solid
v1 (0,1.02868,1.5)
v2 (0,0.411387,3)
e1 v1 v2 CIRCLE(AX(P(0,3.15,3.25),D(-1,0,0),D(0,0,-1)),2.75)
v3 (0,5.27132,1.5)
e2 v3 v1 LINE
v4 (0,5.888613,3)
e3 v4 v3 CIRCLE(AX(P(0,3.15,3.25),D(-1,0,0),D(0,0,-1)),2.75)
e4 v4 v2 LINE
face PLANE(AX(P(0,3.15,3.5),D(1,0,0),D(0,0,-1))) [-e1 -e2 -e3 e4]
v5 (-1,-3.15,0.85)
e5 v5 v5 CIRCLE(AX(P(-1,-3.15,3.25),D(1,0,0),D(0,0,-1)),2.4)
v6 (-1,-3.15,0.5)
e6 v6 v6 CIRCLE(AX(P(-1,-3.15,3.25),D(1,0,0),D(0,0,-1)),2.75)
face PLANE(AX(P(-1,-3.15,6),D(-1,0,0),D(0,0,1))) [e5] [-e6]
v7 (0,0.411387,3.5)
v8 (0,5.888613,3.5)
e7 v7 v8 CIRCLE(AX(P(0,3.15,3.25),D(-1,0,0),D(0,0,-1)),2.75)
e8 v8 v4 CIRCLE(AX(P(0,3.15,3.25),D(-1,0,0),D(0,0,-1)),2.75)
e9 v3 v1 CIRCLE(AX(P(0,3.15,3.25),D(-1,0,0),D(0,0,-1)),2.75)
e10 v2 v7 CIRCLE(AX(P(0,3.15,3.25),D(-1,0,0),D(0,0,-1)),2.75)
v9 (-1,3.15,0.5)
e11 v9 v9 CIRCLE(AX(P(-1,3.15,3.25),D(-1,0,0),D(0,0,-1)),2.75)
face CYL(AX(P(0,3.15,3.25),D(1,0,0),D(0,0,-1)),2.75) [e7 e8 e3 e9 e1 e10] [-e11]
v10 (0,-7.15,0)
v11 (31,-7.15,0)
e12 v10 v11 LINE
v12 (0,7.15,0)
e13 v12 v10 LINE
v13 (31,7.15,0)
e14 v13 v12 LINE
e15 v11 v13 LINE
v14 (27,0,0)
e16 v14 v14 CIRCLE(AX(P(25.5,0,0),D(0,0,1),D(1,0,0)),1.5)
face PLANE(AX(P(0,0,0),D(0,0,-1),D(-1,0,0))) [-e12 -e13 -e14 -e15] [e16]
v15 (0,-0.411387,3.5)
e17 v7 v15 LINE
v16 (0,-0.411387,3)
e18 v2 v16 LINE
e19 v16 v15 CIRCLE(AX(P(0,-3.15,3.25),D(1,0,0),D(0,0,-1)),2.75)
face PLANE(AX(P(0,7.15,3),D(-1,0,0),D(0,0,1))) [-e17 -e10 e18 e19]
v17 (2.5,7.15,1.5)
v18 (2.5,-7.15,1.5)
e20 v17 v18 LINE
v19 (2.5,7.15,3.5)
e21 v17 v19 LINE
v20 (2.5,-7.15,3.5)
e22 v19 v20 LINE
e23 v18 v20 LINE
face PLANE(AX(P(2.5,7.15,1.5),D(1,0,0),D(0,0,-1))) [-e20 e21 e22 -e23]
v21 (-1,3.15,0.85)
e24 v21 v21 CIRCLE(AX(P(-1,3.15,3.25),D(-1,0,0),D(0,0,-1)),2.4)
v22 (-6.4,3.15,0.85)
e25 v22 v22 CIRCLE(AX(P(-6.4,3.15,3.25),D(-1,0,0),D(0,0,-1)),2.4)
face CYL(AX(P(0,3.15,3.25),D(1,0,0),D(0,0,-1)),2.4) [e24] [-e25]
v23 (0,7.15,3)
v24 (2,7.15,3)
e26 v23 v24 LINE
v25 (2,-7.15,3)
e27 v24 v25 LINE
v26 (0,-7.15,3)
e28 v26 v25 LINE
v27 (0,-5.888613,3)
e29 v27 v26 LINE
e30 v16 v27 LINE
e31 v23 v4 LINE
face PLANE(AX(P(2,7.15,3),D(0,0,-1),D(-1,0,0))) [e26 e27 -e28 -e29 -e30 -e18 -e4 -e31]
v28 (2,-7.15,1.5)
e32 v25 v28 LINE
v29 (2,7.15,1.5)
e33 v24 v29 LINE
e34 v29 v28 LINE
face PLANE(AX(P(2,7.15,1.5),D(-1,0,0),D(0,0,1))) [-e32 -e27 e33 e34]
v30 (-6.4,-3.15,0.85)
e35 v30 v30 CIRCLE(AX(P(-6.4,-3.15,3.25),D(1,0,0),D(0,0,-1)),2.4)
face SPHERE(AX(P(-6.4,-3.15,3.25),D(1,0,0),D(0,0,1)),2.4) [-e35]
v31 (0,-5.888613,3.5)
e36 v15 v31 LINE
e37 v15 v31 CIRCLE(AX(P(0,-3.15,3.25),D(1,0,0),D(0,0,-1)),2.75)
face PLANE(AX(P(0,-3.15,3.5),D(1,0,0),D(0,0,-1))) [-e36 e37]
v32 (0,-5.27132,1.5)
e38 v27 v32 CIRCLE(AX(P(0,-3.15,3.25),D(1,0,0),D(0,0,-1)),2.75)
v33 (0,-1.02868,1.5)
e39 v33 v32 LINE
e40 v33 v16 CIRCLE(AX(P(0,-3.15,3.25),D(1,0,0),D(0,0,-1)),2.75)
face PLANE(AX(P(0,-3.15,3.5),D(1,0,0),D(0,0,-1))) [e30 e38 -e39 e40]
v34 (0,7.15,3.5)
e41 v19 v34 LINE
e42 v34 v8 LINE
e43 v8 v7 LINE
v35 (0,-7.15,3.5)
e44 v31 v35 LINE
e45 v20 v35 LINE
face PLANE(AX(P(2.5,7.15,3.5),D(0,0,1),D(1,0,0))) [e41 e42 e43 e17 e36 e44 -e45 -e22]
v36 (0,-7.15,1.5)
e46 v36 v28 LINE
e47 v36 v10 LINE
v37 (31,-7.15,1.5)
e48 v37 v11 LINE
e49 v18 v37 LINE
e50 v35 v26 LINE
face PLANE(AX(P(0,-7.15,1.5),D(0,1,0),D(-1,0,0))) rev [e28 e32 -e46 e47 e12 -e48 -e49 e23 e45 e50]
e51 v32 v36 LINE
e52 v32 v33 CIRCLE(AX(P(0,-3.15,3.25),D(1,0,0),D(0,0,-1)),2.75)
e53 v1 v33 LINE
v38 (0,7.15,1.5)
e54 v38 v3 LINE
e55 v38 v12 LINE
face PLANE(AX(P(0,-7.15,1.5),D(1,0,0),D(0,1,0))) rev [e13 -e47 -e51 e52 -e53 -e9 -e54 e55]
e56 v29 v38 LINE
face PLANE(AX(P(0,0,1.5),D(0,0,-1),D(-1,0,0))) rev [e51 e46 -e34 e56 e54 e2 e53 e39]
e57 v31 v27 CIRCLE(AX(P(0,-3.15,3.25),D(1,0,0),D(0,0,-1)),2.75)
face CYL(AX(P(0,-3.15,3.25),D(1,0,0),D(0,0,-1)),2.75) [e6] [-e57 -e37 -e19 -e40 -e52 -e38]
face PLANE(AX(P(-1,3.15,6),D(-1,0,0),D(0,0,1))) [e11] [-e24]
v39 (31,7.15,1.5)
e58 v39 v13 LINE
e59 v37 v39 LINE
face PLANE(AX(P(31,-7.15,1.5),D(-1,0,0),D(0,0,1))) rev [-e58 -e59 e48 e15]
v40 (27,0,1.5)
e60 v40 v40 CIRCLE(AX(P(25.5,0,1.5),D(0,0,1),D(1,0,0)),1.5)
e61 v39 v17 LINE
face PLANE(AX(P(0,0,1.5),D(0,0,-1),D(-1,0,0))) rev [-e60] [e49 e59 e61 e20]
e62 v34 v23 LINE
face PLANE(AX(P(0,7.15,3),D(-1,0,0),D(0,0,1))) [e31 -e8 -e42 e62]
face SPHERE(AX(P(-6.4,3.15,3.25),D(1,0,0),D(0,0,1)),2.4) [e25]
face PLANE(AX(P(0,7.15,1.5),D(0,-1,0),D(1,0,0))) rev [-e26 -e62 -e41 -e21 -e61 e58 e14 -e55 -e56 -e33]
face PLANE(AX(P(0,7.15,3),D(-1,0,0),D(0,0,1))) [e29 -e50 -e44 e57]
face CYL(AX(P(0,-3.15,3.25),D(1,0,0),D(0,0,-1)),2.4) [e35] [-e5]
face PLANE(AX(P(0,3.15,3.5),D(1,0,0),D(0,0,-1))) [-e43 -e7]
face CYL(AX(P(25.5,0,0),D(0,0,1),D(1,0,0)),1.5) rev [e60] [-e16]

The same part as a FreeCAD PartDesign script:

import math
import FreeCAD as App
import Part
import Sketcher

V = App.Vector

doc = App.newDocument("Part")
params = doc.addObject("Spreadsheet::Sheet", "Params")
for row, (alias, value) in enumerate([
    ("sketch1_width", "31 mm"),
    ("sketch1_height", "14.3 mm"),
    ("pad1_length", "1.5 mm"),
    ("sketch2_width", "2 mm"),
    ("sketch2_width2", "2.5 mm"),
    ("pad2_length", "14.3 mm"),
    ("sketch3_radius", "2.4 mm"),
    ("sketch3_width", "1 mm"),
    ("sketch3_width2", "5.4 mm"),
    ("sketch3_height", "0.35 mm"),
    ("sketch3_height2", "2.75 mm"),
    ("revolution_angle", "360 deg"),
    ("sketch4_diameter", "3 mm"),
    ("pocket1_length", "1.5 mm"),
], start=1):
    params.set(f"A{row}", alias)
    params.set(f"B{row}", "=" + value)
    params.setAlias(f"B{row}", alias)

body = doc.addObject("PartDesign::Body", "Body")

# Sketch on XY plane
sketch1 = doc.addObject("Sketcher::SketchObject", "Sketch")
body.addObject(sketch1)
sketch1.AttachmentSupport = (doc.XY_Plane, [""])
sketch1.MapMode = "FlatFace"
sketch1.addGeometry([
    Part.LineSegment(V(0, 7, 0), V(0, -7, 0)),
    Part.LineSegment(V(0, -7, 0), V(31, -7, 0)),
    Part.LineSegment(V(31, -7, 0), V(31, 7, 0)),
    Part.LineSegment(V(31, 7, 0), V(0, 7, 0)),
], False)
sketch1.addConstraint([
    Sketcher.Constraint("Coincident", 0, 2, 1, 1),
    Sketcher.Constraint("Coincident", 1, 2, 2, 1),
    Sketcher.Constraint("Coincident", 2, 2, 3, 1),
    Sketcher.Constraint("Coincident", 3, 2, 0, 1),
    Sketcher.Constraint("Vertical", 0),
    Sketcher.Constraint("Horizontal", 1),
    Sketcher.Constraint("Vertical", 2),
    Sketcher.Constraint("Horizontal", 3),
    Sketcher.Constraint("Symmetric", 0, 2, 3, 2, -1, 1),
    Sketcher.Constraint("DistanceX", 1, 1, 1, 2, 31.0),
    Sketcher.Constraint("DistanceY", 0, 2, 0, 1, 14.3),
])
sketch1.setExpression("Constraints[9]", "Params.sketch1_width")
sketch1.setExpression("Constraints[10]", "Params.sketch1_height")
pad1 = doc.addObject("PartDesign::Pad", "Pad")
body.addObject(pad1)
pad1.Profile = sketch1
pad1.setExpression("Length", "Params.pad1_length")

# Sketch on XZ plane
sketch2 = doc.addObject("Sketcher::SketchObject", "Sketch001")
body.addObject(sketch2)
sketch2.AttachmentSupport = (doc.XZ_Plane, [""])
sketch2.MapMode = "FlatFace"
sketch2.AttachmentOffset = App.Placement(V(0, 0, 7.15), App.Rotation())
sketch2.addGeometry([
    Part.LineSegment(V(2.5, 1.5, 0), V(2.5, 3.5, 0)),  # 0
    Part.LineSegment(V(2.5, 3.5, 0), V(0, 3.5, 0)),  # 1
    Part.LineSegment(V(0, 3.5, 0), V(0, 3, 0)),  # 2
    Part.LineSegment(V(0, 3, 0), V(2, 3, 0)),  # 3
    Part.LineSegment(V(2, 3, 0), V(2, 1.5, 0)),  # 4
    Part.LineSegment(V(2, 1.5, 0), V(2.5, 1.5, 0)),  # 5
], False)
sketch2.addConstraint([
    Sketcher.Constraint("Coincident", 0, 2, 1, 1),
    Sketcher.Constraint("Coincident", 1, 2, 2, 1),
    Sketcher.Constraint("Coincident", 2, 2, 3, 1),
    Sketcher.Constraint("Coincident", 3, 2, 4, 1),
    Sketcher.Constraint("Coincident", 4, 2, 5, 1),
    Sketcher.Constraint("Coincident", 5, 2, 0, 1),
    Sketcher.Constraint("Vertical", 0),
    Sketcher.Constraint("Horizontal", 1),
    Sketcher.Constraint("Vertical", 2),
    Sketcher.Constraint("Horizontal", 3),
    Sketcher.Constraint("Vertical", 4),
    Sketcher.Constraint("Horizontal", 5),
    Sketcher.Constraint("PointOnObject", 1, 2, -2),
    Sketcher.Constraint("Equal", 3, 0),
    Sketcher.Constraint("Equal", 5, 2),
    Sketcher.Constraint("DistanceX", 3, 1, 3, 2, 2.0),
    Sketcher.Constraint("DistanceX", 1, 2, 1, 1, 2.5),
    Sketcher.Constraint("DistanceY", -1, 1, 2, 2, 3.0),
])
sketch2.setExpression("Constraints[15]", "Params.sketch2_width")
sketch2.setExpression("Constraints[16]", "Params.sketch2_width2")
pad2 = doc.addObject("PartDesign::Pad", "Pad001")
body.addObject(pad2)
pad2.Profile = sketch2
pad2.setExpression("Length", "Params.pad2_length")
pad2.Reversed = True

# Sketch on XZ plane
sketch3 = doc.addObject("Sketcher::SketchObject", "Sketch002")
body.addObject(sketch3)
sketch3.AttachmentSupport = (doc.XZ_Plane, [""])
sketch3.MapMode = "FlatFace"
sketch3.AttachmentOffset = App.Placement(V(0, 0, 3.15), App.Rotation())
sketch3.addGeometry([
    Part.LineSegment(V(0, 6, 0), V(-1, 6, 0)),  # 0
    Part.LineSegment(V(-1, 6, 0), V(-1, 5.65, 0)),  # 1
    Part.LineSegment(V(-1, 5.65, 0), V(-6.4, 5.65, 0)),  # 2
    Part.ArcOfCircle(Part.Circle(V(-6.4, 3.25, 0), V(0, 0, 1), 2.4), math.radians(90), math.radians(180)),  # 3
    Part.LineSegment(V(-8.8, 3.25, 0), V(0, 3.25, 0)),  # 4
    Part.LineSegment(V(0, 3.25, 0), V(0, 6, 0)),  # 5
], False)
sketch3.addGeometry(Part.LineSegment(V(0, 3.25, 0), V(-8.8, 3.25, 0)), True)  # axis
sketch3.addConstraint([
    Sketcher.Constraint("Coincident", 0, 2, 1, 1),
    Sketcher.Constraint("Coincident", 1, 2, 2, 1),
    Sketcher.Constraint("Tangent", 2, 2, 3, 1),
    Sketcher.Constraint("Coincident", 3, 2, 4, 1),
    Sketcher.Constraint("Coincident", 4, 2, 5, 1),
    Sketcher.Constraint("Coincident", 5, 2, 0, 1),
    Sketcher.Constraint("Horizontal", 0),
    Sketcher.Constraint("Vertical", 1),
    Sketcher.Constraint("Horizontal", 2),
    Sketcher.Constraint("Horizontal", 4),
    Sketcher.Constraint("Vertical", 5),
    Sketcher.Constraint("Horizontal", 6),
    Sketcher.Constraint("Coincident", 6, 1, 4, 2),
    Sketcher.Constraint("PointOnObject", 4, 2, -2),
    Sketcher.Constraint("Equal", 4, 6),
    Sketcher.Constraint("Radius", 3, 2.4),
    Sketcher.Constraint("DistanceX", 0, 2, 0, 1, 1.0),
    Sketcher.Constraint("DistanceX", 2, 2, 2, 1, 5.4),
    Sketcher.Constraint("DistanceY", -1, 1, 0, 2, 6.0),
    Sketcher.Constraint("DistanceY", 1, 2, 1, 1, 0.35),
    Sketcher.Constraint("DistanceY", 5, 1, 5, 2, 2.75),
])
sketch3.setExpression("Constraints[15]", "Params.sketch3_radius")
sketch3.setExpression("Constraints[16]", "Params.sketch3_width")
sketch3.setExpression("Constraints[17]", "Params.sketch3_width2")
sketch3.setExpression("Constraints[19]", "Params.sketch3_height")
sketch3.setExpression("Constraints[20]", "Params.sketch3_height2")
revolution = doc.addObject("PartDesign::Revolution", "Revolution")
body.addObject(revolution)
revolution.Profile = sketch3
revolution.ReferenceAxis = (sketch3, ["Axis0"])
revolution.setExpression("Angle", "Params.revolution_angle")
doc.recompute()

mirrored = doc.addObject("PartDesign::Mirrored", "Mirrored")
body.addObject(mirrored)
mirrored.Originals = [revolution]
mirrored.MirrorPlane = (doc.XZ_Plane, [""])
body.Tip = mirrored

# Sketch on XY plane
sketch4 = doc.addObject("Sketcher::SketchObject", "Sketch003")
body.addObject(sketch4)
sketch4.AttachmentSupport = (doc.XY_Plane, [""])
sketch4.MapMode = "FlatFace"
sketch4.AttachmentOffset = App.Placement(V(0, 0, 1.5), App.Rotation())
sketch4.addGeometry(Part.Circle(V(25.5, 0, 0), V(0, 0, 1), 1.5), False)
sketch4.addConstraint([
    Sketcher.Constraint("PointOnObject", 0, 3, -1),
    Sketcher.Constraint("Diameter", 0, 3.0),
    Sketcher.Constraint("DistanceX", -1, 1, 0, 3, 25.5),
])
sketch4.setExpression("Constraints[1]", "Params.sketch4_diameter")
pocket1 = doc.addObject("PartDesign::Pocket", "Pocket")
body.addObject(pocket1)
pocket1.Profile = sketch4
pocket1.setExpression("Length", "Params.pocket1_length")

doc.recompute()
